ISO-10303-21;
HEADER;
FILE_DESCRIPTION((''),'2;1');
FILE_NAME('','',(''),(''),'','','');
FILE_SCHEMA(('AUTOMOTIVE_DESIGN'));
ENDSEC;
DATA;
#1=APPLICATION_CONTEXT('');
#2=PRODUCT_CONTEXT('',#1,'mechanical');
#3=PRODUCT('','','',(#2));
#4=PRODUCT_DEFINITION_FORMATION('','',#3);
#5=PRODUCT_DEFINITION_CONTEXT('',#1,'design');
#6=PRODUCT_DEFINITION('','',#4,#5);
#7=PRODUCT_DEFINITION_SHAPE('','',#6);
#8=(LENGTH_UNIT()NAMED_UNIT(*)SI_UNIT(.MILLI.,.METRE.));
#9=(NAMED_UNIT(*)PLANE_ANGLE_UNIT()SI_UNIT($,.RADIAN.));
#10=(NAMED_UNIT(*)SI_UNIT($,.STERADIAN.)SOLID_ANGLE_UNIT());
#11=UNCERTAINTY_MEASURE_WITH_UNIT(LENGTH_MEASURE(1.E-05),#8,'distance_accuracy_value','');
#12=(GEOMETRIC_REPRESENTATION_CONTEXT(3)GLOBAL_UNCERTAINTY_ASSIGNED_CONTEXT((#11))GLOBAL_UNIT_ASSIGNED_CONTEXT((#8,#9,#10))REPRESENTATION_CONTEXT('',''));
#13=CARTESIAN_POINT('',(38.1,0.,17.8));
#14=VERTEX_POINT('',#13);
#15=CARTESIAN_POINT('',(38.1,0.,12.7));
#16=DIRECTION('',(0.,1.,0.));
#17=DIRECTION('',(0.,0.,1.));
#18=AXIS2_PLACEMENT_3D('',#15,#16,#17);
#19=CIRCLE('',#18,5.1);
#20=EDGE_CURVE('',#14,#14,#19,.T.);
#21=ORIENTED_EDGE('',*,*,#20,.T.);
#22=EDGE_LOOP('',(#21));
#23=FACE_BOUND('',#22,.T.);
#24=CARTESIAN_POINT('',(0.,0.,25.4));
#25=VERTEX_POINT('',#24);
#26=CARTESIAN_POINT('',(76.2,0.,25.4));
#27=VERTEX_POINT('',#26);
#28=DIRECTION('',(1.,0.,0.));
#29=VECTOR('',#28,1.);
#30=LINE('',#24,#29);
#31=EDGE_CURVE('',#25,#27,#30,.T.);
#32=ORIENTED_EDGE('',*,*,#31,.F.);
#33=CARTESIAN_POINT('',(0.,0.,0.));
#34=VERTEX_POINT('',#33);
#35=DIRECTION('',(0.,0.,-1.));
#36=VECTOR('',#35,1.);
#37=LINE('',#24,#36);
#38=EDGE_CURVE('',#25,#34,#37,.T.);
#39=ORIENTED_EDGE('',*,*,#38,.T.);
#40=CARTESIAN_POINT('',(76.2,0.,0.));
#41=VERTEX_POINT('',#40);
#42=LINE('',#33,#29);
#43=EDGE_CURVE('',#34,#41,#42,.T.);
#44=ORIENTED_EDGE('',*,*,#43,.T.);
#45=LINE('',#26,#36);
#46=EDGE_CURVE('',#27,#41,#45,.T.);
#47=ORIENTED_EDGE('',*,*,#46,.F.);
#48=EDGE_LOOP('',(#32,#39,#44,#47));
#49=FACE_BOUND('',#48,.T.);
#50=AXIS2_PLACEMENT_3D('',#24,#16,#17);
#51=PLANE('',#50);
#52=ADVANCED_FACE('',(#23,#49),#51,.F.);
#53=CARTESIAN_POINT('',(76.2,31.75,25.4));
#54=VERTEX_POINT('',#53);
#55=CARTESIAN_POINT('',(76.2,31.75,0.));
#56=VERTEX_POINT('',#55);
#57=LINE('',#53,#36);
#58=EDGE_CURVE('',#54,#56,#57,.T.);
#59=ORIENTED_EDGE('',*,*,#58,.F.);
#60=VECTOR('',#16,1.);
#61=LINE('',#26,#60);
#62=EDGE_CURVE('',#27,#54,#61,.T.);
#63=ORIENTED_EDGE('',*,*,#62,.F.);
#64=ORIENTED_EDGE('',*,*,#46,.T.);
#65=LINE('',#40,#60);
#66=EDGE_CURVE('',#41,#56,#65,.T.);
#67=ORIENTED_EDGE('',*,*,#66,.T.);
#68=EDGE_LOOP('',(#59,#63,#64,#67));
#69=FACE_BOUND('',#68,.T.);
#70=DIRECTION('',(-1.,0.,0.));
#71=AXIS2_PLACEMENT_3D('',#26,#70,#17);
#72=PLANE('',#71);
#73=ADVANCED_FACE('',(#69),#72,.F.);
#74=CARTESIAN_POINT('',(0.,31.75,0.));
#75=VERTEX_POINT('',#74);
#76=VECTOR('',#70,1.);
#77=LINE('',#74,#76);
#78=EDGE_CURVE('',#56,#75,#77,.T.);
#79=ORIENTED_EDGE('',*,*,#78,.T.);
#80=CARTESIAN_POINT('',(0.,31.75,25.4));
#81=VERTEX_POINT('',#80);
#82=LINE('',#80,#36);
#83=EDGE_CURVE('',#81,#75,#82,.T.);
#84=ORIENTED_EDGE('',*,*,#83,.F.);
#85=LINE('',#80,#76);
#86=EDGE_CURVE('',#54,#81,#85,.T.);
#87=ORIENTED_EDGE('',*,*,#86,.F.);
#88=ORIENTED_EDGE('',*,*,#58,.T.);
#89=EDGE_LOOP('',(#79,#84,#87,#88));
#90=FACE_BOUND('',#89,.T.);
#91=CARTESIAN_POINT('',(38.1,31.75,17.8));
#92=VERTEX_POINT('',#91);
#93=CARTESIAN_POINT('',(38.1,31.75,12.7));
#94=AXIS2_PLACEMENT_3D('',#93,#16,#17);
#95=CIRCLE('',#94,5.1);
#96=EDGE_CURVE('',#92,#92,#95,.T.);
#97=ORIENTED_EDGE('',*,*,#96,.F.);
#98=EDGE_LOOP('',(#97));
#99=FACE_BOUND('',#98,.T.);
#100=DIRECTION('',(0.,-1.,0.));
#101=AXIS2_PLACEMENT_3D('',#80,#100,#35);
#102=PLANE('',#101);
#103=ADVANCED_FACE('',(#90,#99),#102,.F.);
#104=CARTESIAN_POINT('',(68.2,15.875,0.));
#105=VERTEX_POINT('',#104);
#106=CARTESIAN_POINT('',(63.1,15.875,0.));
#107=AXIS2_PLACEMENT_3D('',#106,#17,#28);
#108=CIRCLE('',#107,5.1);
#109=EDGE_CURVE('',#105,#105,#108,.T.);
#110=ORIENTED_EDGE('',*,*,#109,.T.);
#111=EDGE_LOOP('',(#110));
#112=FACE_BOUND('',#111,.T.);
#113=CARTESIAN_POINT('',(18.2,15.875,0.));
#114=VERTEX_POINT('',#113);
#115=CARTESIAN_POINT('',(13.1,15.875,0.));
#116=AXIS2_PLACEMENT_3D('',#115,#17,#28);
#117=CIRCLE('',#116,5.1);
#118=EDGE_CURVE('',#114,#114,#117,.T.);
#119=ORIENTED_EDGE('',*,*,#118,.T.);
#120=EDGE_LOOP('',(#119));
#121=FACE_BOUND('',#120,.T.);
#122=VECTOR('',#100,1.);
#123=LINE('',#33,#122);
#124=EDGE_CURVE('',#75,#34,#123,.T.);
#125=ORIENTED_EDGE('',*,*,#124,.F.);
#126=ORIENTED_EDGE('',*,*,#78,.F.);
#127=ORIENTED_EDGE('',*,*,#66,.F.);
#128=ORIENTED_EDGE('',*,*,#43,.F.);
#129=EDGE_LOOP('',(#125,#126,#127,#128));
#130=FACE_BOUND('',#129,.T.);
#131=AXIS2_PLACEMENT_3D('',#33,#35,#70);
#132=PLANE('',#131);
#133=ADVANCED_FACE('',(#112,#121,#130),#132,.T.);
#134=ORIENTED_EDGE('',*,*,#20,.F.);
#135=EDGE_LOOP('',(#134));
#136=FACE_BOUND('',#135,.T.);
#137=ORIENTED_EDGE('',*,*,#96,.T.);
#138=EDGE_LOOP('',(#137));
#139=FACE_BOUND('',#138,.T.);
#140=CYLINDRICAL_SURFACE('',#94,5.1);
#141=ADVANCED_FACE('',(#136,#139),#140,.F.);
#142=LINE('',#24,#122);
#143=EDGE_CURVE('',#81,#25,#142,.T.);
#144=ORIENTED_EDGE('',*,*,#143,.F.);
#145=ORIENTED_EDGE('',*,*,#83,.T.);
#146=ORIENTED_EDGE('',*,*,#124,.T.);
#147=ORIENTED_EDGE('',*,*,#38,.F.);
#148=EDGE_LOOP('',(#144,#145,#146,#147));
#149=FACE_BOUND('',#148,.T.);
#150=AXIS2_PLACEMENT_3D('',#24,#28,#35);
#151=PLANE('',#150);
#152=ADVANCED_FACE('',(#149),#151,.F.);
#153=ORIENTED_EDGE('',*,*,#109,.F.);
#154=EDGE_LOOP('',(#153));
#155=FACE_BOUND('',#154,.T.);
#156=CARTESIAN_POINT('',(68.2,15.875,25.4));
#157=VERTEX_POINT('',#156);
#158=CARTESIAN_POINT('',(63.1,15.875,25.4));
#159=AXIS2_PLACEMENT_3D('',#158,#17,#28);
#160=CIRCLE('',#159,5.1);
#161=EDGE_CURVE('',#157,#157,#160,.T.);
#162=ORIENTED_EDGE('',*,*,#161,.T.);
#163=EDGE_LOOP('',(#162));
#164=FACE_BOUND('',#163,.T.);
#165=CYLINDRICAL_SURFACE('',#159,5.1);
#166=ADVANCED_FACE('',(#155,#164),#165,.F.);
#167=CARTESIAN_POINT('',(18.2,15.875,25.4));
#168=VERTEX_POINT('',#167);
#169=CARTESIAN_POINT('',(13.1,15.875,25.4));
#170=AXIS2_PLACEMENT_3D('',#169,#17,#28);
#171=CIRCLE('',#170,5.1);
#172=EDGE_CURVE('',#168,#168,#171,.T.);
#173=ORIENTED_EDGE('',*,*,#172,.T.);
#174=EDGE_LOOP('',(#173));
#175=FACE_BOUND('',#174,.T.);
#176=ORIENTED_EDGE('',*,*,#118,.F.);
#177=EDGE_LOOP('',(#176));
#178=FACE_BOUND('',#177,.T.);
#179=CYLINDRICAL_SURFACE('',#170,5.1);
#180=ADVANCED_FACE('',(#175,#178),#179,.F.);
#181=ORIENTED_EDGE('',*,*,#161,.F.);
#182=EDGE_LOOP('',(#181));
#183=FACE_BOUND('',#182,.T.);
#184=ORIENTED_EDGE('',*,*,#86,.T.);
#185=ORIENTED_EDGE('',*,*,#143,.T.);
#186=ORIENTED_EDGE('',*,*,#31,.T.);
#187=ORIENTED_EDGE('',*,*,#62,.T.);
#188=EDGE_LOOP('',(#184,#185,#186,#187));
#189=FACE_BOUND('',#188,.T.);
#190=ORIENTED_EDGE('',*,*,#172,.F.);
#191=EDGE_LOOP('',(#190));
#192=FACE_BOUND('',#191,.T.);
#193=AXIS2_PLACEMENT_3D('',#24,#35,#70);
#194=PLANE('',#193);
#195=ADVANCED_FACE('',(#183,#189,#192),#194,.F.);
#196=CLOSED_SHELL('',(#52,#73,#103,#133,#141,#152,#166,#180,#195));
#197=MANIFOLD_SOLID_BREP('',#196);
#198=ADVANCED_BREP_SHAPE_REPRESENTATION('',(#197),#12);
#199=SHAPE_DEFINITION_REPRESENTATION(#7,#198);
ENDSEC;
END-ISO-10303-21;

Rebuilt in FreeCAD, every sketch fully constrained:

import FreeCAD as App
import Part
import Sketcher
Q = App.Units.Quantity

doc = App.newDocument("Part")
body = doc.addObject("PartDesign::Body", "Body")

# Sketch on XY plane
sketch1 = body.newObject("Sketcher::SketchObject", "Sketch")
sketch1.AttachmentSupport = (doc.getObject("XY_Plane"), [""])
sketch1.MapMode = "FlatFace"
sketch1.addGeometry([
    Part.LineSegment(App.Vector(0, 32, 0), App.Vector(0, 0, 0)),
    Part.LineSegment(App.Vector(0, 0, 0), App.Vector(76, 0, 0)),
    Part.LineSegment(App.Vector(76, 0, 0), App.Vector(76, 32, 0)),
    Part.LineSegment(App.Vector(76, 32, 0), App.Vector(0, 32, 0)),
], False)
sketch1.addConstraint([
    Sketcher.Constraint("Coincident", 0, 2, 1, 1),
    Sketcher.Constraint("Coincident", 1, 2, 2, 1),
    Sketcher.Constraint("Coincident", 2, 2, 3, 1),
    Sketcher.Constraint("Coincident", 3, 2, 0, 1),
    Sketcher.Constraint("Vertical", 0),
    Sketcher.Constraint("Horizontal", 1),
    Sketcher.Constraint("Vertical", 2),
    Sketcher.Constraint("Horizontal", 3),
    Sketcher.Constraint("Coincident", 0, 2, -1, 1),
    Sketcher.Constraint("DistanceX", 1, 1, 1, 2, Q("3 in")),
    Sketcher.Constraint("DistanceY", 0, 2, 0, 1, Q("1.25 in")),
])
pad1 = body.newObject("PartDesign::Pad", "Pad")
pad1.Profile = sketch1
pad1.Length = Q("1 in")

# Sketch on XY plane
sketch2 = body.newObject("Sketcher::SketchObject", "Sketch001")
sketch2.AttachmentSupport = (doc.getObject("XY_Plane"), [""])
sketch2.MapMode = "FlatFace"
sketch2.AttachmentOffset = App.Placement(App.Vector(0, 0, 1 * 25.4), App.Rotation())
sketch2.addGeometry([
    Part.Circle(App.Vector(13, 16, 0), App.Vector(0, 0, 1), 5),
    Part.Circle(App.Vector(63, 16, 0), App.Vector(0, 0, 1), 5),
], False)
sketch2.addConstraint([
    Sketcher.Constraint("Equal", 0, 1),
    Sketcher.Constraint("Horizontal", 0, 3, 1, 3),
    Sketcher.Constraint("Diameter", 0, 10.2),
    Sketcher.Constraint("DistanceY", -1, 1, 0, 3, Q("0.625 in")),
    Sketcher.Constraint("DistanceX", -1, 1, 0, 3, 13.1),
    Sketcher.Constraint("DistanceX", -1, 1, 1, 3, 63.1),
])
doc.recompute()
hole = body.newObject("PartDesign::Hole", "Hole")
hole.Profile = sketch2
hole.ThreadType = "None"
hole.Diameter = 10.2
hole.DepthType = "ThroughAll"

# Sketch on XZ plane
sketch3 = body.newObject("Sketcher::SketchObject", "Sketch002")
sketch3.AttachmentSupport = (doc.getObject("XZ_Plane"), [""])
sketch3.MapMode = "FlatFace"
sketch3.AttachmentOffset = App.Placement(App.Vector(0, 0, -1.25 * 25.4), App.Rotation())
sketch3.addGeometry(Part.Circle(App.Vector(38, 13, 0), App.Vector(0, 0, 1), 5), False)
sketch3.addConstraint([
    Sketcher.Constraint("DistanceX", -1, 1, 0, 3, Q("1.5 in")),
    Sketcher.Constraint("DistanceY", -1, 1, 0, 3, Q("0.5 in")),
    Sketcher.Constraint("Diameter", 0, 10.2),
])
doc.recompute()
hole2 = body.newObject("PartDesign::Hole", "Hole001")
hole2.Profile = sketch3
hole2.ThreadType = "None"
hole2.Diameter = 10.2
hole2.DepthType = "ThroughAll"
hole2.Reversed = True

doc.recompute()
